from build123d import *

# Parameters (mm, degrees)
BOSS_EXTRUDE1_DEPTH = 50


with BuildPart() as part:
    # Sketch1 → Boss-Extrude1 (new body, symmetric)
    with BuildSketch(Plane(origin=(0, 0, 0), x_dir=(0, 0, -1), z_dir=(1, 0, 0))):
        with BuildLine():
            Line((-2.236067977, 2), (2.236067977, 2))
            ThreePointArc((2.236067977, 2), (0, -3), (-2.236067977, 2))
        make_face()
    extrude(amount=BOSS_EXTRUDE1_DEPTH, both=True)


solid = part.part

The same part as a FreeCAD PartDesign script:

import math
import FreeCAD as App
import Part
import Sketcher
from FreeCAD import Vector

doc = App.newDocument("Part")
body = doc.addObject("PartDesign::Body", "Body")

# Sketch on YZ plane
sketch1 = body.newObject("Sketcher::SketchObject", "Sketch")
sketch1.AttachmentSupport = (doc.getObject("YZ_Plane"), [""])
sketch1.MapMode = "FlatFace"
sketch1.addGeometry([
    Part.LineSegment(Vector(2, -2.2, 0), Vector(2, 2.2, 0)),
    Part.ArcOfCircle(Part.Circle(Vector(0, 0, 0), Vector(0, 0, 1), 3), math.radians(48), math.radians(312)),
], False)
sketch1.addConstraint([
    Sketcher.Constraint("Coincident", 0, 1, 1, 2),
    Sketcher.Constraint("Coincident", 1, 1, 0, 2),
    Sketcher.Constraint("Vertical", 0),
    Sketcher.Constraint("Coincident", 1, 3, -1, 1),
    Sketcher.Constraint("Radius", 1, 3.0),
    Sketcher.Constraint("DistanceX", -1, 1, 0, 1, 2.0),
])
pad1 = body.newObject("PartDesign::Pad", "Pad")
pad1.Profile = sketch1
pad1.Length = 100
pad1.Midplane = True

doc.recompute()
